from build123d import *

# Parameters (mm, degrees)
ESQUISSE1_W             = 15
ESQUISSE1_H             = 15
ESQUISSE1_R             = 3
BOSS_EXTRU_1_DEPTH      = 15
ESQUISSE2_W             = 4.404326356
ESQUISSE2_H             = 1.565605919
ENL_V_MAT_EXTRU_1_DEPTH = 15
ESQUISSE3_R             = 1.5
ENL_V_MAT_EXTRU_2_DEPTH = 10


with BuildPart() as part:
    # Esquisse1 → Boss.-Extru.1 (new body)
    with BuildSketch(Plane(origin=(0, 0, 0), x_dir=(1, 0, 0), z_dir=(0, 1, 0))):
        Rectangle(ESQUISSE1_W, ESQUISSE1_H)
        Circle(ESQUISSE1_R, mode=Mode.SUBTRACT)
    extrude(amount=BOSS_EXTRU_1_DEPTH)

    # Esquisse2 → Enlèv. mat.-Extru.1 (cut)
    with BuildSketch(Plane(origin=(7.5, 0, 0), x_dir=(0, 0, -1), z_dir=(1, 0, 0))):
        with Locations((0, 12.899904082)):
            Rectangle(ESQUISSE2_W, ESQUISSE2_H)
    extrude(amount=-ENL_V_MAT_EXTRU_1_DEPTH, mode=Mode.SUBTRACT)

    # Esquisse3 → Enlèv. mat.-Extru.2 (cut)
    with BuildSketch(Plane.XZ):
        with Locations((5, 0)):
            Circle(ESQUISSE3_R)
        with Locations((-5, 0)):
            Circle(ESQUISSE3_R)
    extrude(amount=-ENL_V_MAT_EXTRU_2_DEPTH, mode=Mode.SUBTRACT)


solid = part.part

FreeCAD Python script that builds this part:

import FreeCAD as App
import Part
import Sketcher
from FreeCAD import Vector


def add_polygon(sketch, points):
    """Adds a closed chain of lines whose ends are joined by coincident constraints."""
    first, n = sketch.GeometryCount, len(points)
    for a, b in zip(points, points[1:] + points[:1]):
        sketch.addGeometry(Part.LineSegment(App.Vector(*a, 0), App.Vector(*b, 0)), False)
    for i in range(n):
        sketch.addConstraint(Sketcher.Constraint("Coincident", first + i, 2, first + (i + 1) % n, 1))

doc = App.newDocument("Part")
body = doc.addObject("PartDesign::Body", "Body")

# Sketch on XZ plane
sketch1 = body.newObject("Sketcher::SketchObject", "Sketch")
sketch1.AttachmentSupport = (doc.getObject("XZ_Plane"), [""])
sketch1.MapMode = "FlatFace"
add_polygon(sketch1, [(-7.5, -7.5), (-7.5, 7.5), (7.5, 7.5), (7.5, -7.5)])  # lines 0-3
sketch1.addGeometry(Part.Circle(Vector(0, 0, 0), Vector(0, 0, 1), 3), False)  # 4
sketch1.addConstraint([
    Sketcher.Constraint("Vertical", 0),
    Sketcher.Constraint("Horizontal", 1),
    Sketcher.Constraint("Vertical", 2),
    Sketcher.Constraint("Horizontal", 3),
    Sketcher.Constraint("Coincident", 4, 3, -1, 1),
    Sketcher.Constraint("Symmetric", 0, 2, 2, 2, -1, 1),
    Sketcher.Constraint("Equal", 3, 0),
    Sketcher.Constraint("Diameter", 4, 6.0),
    Sketcher.Constraint("DistanceX", 1, 1, 1, 2, 15.0),
])
pad1 = body.newObject("PartDesign::Pad", "Pad")
pad1.Profile = sketch1
pad1.Length = 15
pad1.Reversed = True

# Sketch on YZ plane
sketch2 = body.newObject("Sketcher::SketchObject", "Sketch001")
sketch2.AttachmentSupport = (doc.getObject("YZ_Plane"), [""])
sketch2.MapMode = "FlatFace"
sketch2.AttachmentOffset = App.Placement(Vector(0, 0, 7.5), App.Rotation())
add_polygon(sketch2, [(13.7, 2.2), (12.1, 2.2), (12.1, -2.2), (13.7, -2.2)])  # lines 0-3
sketch2.addConstraint([
    Sketcher.Constraint("Horizontal", 0),
    Sketcher.Constraint("Vertical", 1),
    Sketcher.Constraint("Horizontal", 2),
    Sketcher.Constraint("Vertical", 3),
    Sketcher.Constraint("DistanceX", -1, 1, 0, 2, 12.117101),
    Sketcher.Constraint("DistanceX", 0, 2, 0, 1, 1.565606),
    Sketcher.Constraint("DistanceY", 1, 2, 1, 1, 4.404326),
    Sketcher.Constraint("DistanceY", -1, 1, 0, 2, 2.202163),
])
pocket1 = body.newObject("PartDesign::Pocket", "Pocket")
pocket1.Profile = sketch2
pocket1.Length = 15

# Sketch on XZ plane
sketch3 = body.newObject("Sketcher::SketchObject", "Sketch002")
sketch3.AttachmentSupport = (doc.getObject("XZ_Plane"), [""])
sketch3.MapMode = "FlatFace"
sketch3.addGeometry([
    Part.Circle(Vector(5, 0, 0), Vector(0, 0, 1), 1.5),
    Part.Circle(Vector(-5, 0, 0), Vector(0, 0, 1), 1.5),
], False)
sketch3.addConstraint([
    Sketcher.Constraint("Equal", 0, 1),
    Sketcher.Constraint("Symmetric", 0, 3, 1, 3, -1, 1),
    Sketcher.Constraint("PointOnObject", 0, 3, -1),
    Sketcher.Constraint("Diameter", 0, 3.0),
    Sketcher.Constraint("DistanceX", -1, 1, 0, 3, 5.0),
])
pocket2 = body.newObject("PartDesign::Pocket", "Pocket001")
pocket2.Profile = sketch3
pocket2.Length = 10

doc.recompute()
